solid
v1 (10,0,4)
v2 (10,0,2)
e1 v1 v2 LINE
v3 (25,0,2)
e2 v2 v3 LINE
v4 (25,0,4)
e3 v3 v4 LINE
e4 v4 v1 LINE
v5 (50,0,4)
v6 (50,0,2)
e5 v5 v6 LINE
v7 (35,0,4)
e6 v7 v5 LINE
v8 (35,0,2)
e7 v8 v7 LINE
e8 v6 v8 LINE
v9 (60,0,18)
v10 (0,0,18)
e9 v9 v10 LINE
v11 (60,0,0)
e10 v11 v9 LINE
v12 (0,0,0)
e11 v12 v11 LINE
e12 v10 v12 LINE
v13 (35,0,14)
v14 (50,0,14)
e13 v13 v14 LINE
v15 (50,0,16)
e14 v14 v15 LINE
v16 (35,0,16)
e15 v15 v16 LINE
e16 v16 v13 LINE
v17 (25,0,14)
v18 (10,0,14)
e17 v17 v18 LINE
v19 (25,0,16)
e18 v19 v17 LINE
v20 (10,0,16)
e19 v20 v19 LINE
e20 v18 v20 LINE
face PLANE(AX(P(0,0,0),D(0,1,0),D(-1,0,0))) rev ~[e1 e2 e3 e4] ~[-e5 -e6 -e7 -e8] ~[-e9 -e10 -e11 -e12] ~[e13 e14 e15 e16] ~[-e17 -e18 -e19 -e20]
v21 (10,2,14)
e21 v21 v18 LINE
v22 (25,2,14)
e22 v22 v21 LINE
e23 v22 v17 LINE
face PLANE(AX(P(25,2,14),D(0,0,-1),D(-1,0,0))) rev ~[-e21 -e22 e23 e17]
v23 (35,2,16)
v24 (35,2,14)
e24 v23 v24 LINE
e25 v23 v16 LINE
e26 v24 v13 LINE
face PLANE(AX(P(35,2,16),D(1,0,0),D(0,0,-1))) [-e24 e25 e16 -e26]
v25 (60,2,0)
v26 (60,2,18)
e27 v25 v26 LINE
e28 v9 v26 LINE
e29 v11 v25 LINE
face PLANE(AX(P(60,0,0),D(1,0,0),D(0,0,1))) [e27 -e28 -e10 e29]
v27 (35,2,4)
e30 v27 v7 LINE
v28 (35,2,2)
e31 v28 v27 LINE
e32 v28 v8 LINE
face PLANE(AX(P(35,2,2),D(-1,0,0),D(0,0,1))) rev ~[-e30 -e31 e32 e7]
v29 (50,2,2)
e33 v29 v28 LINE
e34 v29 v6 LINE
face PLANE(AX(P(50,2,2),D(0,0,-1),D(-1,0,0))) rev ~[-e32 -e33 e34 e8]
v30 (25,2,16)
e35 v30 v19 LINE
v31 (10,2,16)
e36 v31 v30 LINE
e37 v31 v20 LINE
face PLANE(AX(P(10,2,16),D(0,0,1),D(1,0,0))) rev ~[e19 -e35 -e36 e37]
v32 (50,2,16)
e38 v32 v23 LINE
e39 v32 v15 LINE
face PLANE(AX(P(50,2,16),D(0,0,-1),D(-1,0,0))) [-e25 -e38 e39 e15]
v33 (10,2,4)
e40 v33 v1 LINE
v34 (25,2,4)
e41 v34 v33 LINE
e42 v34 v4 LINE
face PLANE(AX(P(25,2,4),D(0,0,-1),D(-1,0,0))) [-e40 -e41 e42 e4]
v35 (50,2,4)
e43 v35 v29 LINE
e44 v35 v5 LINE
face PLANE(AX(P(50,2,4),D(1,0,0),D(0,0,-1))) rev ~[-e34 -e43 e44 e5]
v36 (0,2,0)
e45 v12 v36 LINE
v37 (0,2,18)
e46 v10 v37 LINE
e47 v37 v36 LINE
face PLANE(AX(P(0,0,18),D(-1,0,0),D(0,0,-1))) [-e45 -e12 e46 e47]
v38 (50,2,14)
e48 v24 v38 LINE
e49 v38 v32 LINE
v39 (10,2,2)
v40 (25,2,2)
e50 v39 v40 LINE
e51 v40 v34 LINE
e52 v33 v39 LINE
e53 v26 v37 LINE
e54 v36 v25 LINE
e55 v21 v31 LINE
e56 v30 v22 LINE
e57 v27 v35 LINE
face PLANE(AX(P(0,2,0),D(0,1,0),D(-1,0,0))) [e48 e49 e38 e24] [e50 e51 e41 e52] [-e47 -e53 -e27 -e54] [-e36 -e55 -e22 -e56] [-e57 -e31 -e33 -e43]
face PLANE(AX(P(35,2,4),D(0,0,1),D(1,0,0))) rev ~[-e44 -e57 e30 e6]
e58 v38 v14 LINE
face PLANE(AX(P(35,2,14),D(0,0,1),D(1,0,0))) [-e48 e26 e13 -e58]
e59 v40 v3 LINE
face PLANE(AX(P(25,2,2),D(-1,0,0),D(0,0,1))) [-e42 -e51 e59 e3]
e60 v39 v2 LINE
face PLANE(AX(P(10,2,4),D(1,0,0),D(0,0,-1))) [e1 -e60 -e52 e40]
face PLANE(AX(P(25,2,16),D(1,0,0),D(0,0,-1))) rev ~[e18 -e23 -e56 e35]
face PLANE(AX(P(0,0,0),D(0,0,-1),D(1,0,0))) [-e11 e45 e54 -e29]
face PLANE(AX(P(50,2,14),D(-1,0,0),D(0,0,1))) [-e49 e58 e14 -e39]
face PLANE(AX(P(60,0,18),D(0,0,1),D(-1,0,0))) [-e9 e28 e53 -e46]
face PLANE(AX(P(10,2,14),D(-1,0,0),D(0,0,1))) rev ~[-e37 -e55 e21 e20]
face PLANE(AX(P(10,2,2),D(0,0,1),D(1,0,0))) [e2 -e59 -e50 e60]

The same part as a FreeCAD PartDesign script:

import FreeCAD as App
import Part
import Sketcher
Q = App.Units.Quantity

doc = App.newDocument("Part")
params = doc.addObject("Spreadsheet::Sheet", "Params")
for row, (alias, value) in enumerate([
    ("sketch1_width", "60 mm"),
    ("sketch1_height", "18 mm"),
    ("pad1_length", "2 mm"),
    ("sketch2_width", "15 mm"),
    ("sketch2_height", "2 mm"),
], start=1):
    params.set(f"A{row}", alias)
    params.set(f"B{row}", "=" + value)
    params.setAlias(f"B{row}", alias)

body = doc.addObject("PartDesign::Body", "Body")

# Sketch on XZ plane
sketch1 = body.newObject("Sketcher::SketchObject", "Sketch")
sketch1.AttachmentSupport = (doc.getObject("XZ_Plane"), [""])
sketch1.MapMode = "FlatFace"
sketch1.addGeometry(Part.LineSegment(App.Vector(60, 0, 0), App.Vector(0, 0, 0)), False)
sketch1.addGeometry(Part.LineSegment(App.Vector(0, 0, 0), App.Vector(0, 18, 0)), False)
sketch1.addGeometry(Part.LineSegment(App.Vector(0, 18, 0), App.Vector(60, 18, 0)), False)
sketch1.addGeometry(Part.LineSegment(App.Vector(60, 18, 0), App.Vector(60, 0, 0)), False)
sketch1.addConstraint(Sketcher.Constraint("Coincident", 0, 2, 1, 1))
sketch1.addConstraint(Sketcher.Constraint("Coincident", 1, 2, 2, 1))
sketch1.addConstraint(Sketcher.Constraint("Coincident", 2, 2, 3, 1))
sketch1.addConstraint(Sketcher.Constraint("Coincident", 3, 2, 0, 1))
sketch1.addConstraint(Sketcher.Constraint("Horizontal", 0))
sketch1.addConstraint(Sketcher.Constraint("Vertical", 1))
sketch1.addConstraint(Sketcher.Constraint("Horizontal", 2))
sketch1.addConstraint(Sketcher.Constraint("Vertical", 3))
sketch1.addConstraint(Sketcher.Constraint("Coincident", 0, 2, -1, 1))
sketch1.addConstraint(Sketcher.Constraint("DistanceX", 0, 2, 0, 1, Q("60 mm")))
sketch1.addConstraint(Sketcher.Constraint("DistanceY", 1, 1, 1, 2, Q("18 mm")))
sketch1.setExpression("Constraints[9]", "Params.sketch1_width")
sketch1.setExpression("Constraints[10]", "Params.sketch1_height")
pad1 = body.newObject("PartDesign::Pad", "Pad")
pad1.Profile = sketch1
pad1.setExpression("Length", "Params.pad1_length")
pad1.Reversed = True

# Sketch on XZ plane
sketch2 = body.newObject("Sketcher::SketchObject", "Sketch001")
sketch2.AttachmentSupport = (doc.getObject("XZ_Plane"), [""])
sketch2.MapMode = "FlatFace"
sketch2.AttachmentOffset = App.Placement(App.Vector(0, 0, -2), App.Rotation())
sketch2.addGeometry(Part.LineSegment(App.Vector(10, 14, 0), App.Vector(10, 16, 0)), False)
sketch2.addGeometry(Part.LineSegment(App.Vector(10, 16, 0), App.Vector(25, 16, 0)), False)
sketch2.addGeometry(Part.LineSegment(App.Vector(25, 16, 0), App.Vector(25, 14, 0)), False)
sketch2.addGeometry(Part.LineSegment(App.Vector(25, 14, 0), App.Vector(10, 14, 0)), False)
sketch2.addGeometry(Part.LineSegment(App.Vector(25, 2, 0), App.Vector(10, 2, 0)), False)
sketch2.addGeometry(Part.LineSegment(App.Vector(10, 2, 0), App.Vector(10, 4, 0)), False)
sketch2.addGeometry(Part.LineSegment(App.Vector(10, 4, 0), App.Vector(25, 4, 0)), False)
sketch2.addGeometry(Part.LineSegment(App.Vector(25, 4, 0), App.Vector(25, 2, 0)), False)
sketch2.addGeometry(Part.LineSegment(App.Vector(35, 16, 0), App.Vector(50, 16, 0)), False)
sketch2.addGeometry(Part.LineSegment(App.Vector(50, 16, 0), App.Vector(50, 14, 0)), False)
sketch2.addGeometry(Part.LineSegment(App.Vector(50, 14, 0), App.Vector(35, 14, 0)), False)
sketch2.addGeometry(Part.LineSegment(App.Vector(35, 14, 0), App.Vector(35, 16, 0)), False)
sketch2.addGeometry(Part.LineSegment(App.Vector(50, 4, 0), App.Vector(50, 2, 0)), False)
sketch2.addGeometry(Part.LineSegment(App.Vector(50, 2, 0), App.Vector(35, 2, 0)), False)
sketch2.addGeometry(Part.LineSegment(App.Vector(35, 2, 0), App.Vector(35, 4, 0)), False)
sketch2.addGeometry(Part.LineSegment(App.Vector(35, 4, 0), App.Vector(50, 4, 0)), False)
sketch2.addConstraint(Sketcher.Constraint("Coincident", 0, 2, 1, 1))
sketch2.addConstraint(Sketcher.Constraint("Coincident", 1, 2, 2, 1))
sketch2.addConstraint(Sketcher.Constraint("Coincident", 2, 2, 3, 1))
sketch2.addConstraint(Sketcher.Constraint("Coincident", 3, 2, 0, 1))
sketch2.addConstraint(Sketcher.Constraint("Coincident", 4, 2, 5, 1))
sketch2.addConstraint(Sketcher.Constraint("Coincident", 5, 2, 6, 1))
sketch2.addConstraint(Sketcher.Constraint("Coincident", 6, 2, 7, 1))
sketch2.addConstraint(Sketcher.Constraint("Coincident", 7, 2, 4, 1))
sketch2.addConstraint(Sketcher.Constraint("Coincident", 8, 2, 9, 1))
sketch2.addConstraint(Sketcher.Constraint("Coincident", 9, 2, 10, 1))
sketch2.addConstraint(Sketcher.Constraint("Coincident", 10, 2, 11, 1))
sketch2.addConstraint(Sketcher.Constraint("Coincident", 11, 2, 8, 1))
sketch2.addConstraint(Sketcher.Constraint("Coincident", 12, 2, 13, 1))
sketch2.addConstraint(Sketcher.Constraint("Coincident", 13, 2, 14, 1))
sketch2.addConstraint(Sketcher.Constraint("Coincident", 14, 2, 15, 1))
sketch2.addConstraint(Sketcher.Constraint("Coincident", 15, 2, 12, 1))
sketch2.addConstraint(Sketcher.Constraint("Vertical", 0))
sketch2.addConstraint(Sketcher.Constraint("Horizontal", 1))
sketch2.addConstraint(Sketcher.Constraint("Vertical", 2))
sketch2.addConstraint(Sketcher.Constraint("Horizontal", 3))
sketch2.addConstraint(Sketcher.Constraint("Horizontal", 4))
sketch2.addConstraint(Sketcher.Constraint("Vertical", 5))
sketch2.addConstraint(Sketcher.Constraint("Horizontal", 6))
sketch2.addConstraint(Sketcher.Constraint("Vertical", 7))
sketch2.addConstraint(Sketcher.Constraint("Horizontal", 8))
sketch2.addConstraint(Sketcher.Constraint("Vertical", 9))
sketch2.addConstraint(Sketcher.Constraint("Horizontal", 10))
sketch2.addConstraint(Sketcher.Constraint("Vertical", 11))
sketch2.addConstraint(Sketcher.Constraint("Vertical", 12))
sketch2.addConstraint(Sketcher.Constraint("Horizontal", 13))
sketch2.addConstraint(Sketcher.Constraint("Vertical", 14))
sketch2.addConstraint(Sketcher.Constraint("Horizontal", 15))
sketch2.addConstraint(Sketcher.Constraint("Horizontal", 1, 2, 8, 2))
sketch2.addConstraint(Sketcher.Constraint("Horizontal", 3, 2, 9, 2))
sketch2.addConstraint(Sketcher.Constraint("Horizontal", 7, 2, 12, 2))
sketch2.addConstraint(Sketcher.Constraint("Horizontal", 6, 2, 14, 2))
sketch2.addConstraint(Sketcher.Constraint("Vertical", 3, 2, 4, 2))
sketch2.addConstraint(Sketcher.Constraint("Vertical", 2, 2, 6, 2))
sketch2.addConstraint(Sketcher.Constraint("Vertical", 9, 2, 12, 2))
sketch2.addConstraint(Sketcher.Constraint("Vertical", 11, 2, 13, 2))
sketch2.addConstraint(Sketcher.Constraint("Equal", 6, 8))
sketch2.addConstraint(Sketcher.Constraint("Equal", 2, 5))
sketch2.addConstraint(Sketcher.Constraint("DistanceX", 1, 1, 1, 2, Q("15 mm")))
sketch2.addConstraint(Sketcher.Constraint("DistanceY", 0, 1, 0, 2, Q("2 mm")))
sketch2.addConstraint(Sketcher.Constraint("DistanceX", -1, 1, 0, 2, Q("10 mm")))
sketch2.addConstraint(Sketcher.Constraint("DistanceY", -1, 1, 4, 2, Q("2 mm")))
sketch2.addConstraint(Sketcher.Constraint("DistanceY", 5, 2, 3, 2, Q("10 mm")))
sketch2.addConstraint(Sketcher.Constraint("DistanceX", 2, 2, 10, 2, Q("10 mm")))
sketch2.setExpression("Constraints[42]", "Params.sketch2_width")
sketch2.setExpression("Constraints[43]", "Params.sketch2_height")
pocket1 = body.newObject("PartDesign::Pocket", "Pocket")
pocket1.Profile = sketch2
pocket1.Type = "ThroughAll"
pocket1.Reversed = True

doc.recompute()
